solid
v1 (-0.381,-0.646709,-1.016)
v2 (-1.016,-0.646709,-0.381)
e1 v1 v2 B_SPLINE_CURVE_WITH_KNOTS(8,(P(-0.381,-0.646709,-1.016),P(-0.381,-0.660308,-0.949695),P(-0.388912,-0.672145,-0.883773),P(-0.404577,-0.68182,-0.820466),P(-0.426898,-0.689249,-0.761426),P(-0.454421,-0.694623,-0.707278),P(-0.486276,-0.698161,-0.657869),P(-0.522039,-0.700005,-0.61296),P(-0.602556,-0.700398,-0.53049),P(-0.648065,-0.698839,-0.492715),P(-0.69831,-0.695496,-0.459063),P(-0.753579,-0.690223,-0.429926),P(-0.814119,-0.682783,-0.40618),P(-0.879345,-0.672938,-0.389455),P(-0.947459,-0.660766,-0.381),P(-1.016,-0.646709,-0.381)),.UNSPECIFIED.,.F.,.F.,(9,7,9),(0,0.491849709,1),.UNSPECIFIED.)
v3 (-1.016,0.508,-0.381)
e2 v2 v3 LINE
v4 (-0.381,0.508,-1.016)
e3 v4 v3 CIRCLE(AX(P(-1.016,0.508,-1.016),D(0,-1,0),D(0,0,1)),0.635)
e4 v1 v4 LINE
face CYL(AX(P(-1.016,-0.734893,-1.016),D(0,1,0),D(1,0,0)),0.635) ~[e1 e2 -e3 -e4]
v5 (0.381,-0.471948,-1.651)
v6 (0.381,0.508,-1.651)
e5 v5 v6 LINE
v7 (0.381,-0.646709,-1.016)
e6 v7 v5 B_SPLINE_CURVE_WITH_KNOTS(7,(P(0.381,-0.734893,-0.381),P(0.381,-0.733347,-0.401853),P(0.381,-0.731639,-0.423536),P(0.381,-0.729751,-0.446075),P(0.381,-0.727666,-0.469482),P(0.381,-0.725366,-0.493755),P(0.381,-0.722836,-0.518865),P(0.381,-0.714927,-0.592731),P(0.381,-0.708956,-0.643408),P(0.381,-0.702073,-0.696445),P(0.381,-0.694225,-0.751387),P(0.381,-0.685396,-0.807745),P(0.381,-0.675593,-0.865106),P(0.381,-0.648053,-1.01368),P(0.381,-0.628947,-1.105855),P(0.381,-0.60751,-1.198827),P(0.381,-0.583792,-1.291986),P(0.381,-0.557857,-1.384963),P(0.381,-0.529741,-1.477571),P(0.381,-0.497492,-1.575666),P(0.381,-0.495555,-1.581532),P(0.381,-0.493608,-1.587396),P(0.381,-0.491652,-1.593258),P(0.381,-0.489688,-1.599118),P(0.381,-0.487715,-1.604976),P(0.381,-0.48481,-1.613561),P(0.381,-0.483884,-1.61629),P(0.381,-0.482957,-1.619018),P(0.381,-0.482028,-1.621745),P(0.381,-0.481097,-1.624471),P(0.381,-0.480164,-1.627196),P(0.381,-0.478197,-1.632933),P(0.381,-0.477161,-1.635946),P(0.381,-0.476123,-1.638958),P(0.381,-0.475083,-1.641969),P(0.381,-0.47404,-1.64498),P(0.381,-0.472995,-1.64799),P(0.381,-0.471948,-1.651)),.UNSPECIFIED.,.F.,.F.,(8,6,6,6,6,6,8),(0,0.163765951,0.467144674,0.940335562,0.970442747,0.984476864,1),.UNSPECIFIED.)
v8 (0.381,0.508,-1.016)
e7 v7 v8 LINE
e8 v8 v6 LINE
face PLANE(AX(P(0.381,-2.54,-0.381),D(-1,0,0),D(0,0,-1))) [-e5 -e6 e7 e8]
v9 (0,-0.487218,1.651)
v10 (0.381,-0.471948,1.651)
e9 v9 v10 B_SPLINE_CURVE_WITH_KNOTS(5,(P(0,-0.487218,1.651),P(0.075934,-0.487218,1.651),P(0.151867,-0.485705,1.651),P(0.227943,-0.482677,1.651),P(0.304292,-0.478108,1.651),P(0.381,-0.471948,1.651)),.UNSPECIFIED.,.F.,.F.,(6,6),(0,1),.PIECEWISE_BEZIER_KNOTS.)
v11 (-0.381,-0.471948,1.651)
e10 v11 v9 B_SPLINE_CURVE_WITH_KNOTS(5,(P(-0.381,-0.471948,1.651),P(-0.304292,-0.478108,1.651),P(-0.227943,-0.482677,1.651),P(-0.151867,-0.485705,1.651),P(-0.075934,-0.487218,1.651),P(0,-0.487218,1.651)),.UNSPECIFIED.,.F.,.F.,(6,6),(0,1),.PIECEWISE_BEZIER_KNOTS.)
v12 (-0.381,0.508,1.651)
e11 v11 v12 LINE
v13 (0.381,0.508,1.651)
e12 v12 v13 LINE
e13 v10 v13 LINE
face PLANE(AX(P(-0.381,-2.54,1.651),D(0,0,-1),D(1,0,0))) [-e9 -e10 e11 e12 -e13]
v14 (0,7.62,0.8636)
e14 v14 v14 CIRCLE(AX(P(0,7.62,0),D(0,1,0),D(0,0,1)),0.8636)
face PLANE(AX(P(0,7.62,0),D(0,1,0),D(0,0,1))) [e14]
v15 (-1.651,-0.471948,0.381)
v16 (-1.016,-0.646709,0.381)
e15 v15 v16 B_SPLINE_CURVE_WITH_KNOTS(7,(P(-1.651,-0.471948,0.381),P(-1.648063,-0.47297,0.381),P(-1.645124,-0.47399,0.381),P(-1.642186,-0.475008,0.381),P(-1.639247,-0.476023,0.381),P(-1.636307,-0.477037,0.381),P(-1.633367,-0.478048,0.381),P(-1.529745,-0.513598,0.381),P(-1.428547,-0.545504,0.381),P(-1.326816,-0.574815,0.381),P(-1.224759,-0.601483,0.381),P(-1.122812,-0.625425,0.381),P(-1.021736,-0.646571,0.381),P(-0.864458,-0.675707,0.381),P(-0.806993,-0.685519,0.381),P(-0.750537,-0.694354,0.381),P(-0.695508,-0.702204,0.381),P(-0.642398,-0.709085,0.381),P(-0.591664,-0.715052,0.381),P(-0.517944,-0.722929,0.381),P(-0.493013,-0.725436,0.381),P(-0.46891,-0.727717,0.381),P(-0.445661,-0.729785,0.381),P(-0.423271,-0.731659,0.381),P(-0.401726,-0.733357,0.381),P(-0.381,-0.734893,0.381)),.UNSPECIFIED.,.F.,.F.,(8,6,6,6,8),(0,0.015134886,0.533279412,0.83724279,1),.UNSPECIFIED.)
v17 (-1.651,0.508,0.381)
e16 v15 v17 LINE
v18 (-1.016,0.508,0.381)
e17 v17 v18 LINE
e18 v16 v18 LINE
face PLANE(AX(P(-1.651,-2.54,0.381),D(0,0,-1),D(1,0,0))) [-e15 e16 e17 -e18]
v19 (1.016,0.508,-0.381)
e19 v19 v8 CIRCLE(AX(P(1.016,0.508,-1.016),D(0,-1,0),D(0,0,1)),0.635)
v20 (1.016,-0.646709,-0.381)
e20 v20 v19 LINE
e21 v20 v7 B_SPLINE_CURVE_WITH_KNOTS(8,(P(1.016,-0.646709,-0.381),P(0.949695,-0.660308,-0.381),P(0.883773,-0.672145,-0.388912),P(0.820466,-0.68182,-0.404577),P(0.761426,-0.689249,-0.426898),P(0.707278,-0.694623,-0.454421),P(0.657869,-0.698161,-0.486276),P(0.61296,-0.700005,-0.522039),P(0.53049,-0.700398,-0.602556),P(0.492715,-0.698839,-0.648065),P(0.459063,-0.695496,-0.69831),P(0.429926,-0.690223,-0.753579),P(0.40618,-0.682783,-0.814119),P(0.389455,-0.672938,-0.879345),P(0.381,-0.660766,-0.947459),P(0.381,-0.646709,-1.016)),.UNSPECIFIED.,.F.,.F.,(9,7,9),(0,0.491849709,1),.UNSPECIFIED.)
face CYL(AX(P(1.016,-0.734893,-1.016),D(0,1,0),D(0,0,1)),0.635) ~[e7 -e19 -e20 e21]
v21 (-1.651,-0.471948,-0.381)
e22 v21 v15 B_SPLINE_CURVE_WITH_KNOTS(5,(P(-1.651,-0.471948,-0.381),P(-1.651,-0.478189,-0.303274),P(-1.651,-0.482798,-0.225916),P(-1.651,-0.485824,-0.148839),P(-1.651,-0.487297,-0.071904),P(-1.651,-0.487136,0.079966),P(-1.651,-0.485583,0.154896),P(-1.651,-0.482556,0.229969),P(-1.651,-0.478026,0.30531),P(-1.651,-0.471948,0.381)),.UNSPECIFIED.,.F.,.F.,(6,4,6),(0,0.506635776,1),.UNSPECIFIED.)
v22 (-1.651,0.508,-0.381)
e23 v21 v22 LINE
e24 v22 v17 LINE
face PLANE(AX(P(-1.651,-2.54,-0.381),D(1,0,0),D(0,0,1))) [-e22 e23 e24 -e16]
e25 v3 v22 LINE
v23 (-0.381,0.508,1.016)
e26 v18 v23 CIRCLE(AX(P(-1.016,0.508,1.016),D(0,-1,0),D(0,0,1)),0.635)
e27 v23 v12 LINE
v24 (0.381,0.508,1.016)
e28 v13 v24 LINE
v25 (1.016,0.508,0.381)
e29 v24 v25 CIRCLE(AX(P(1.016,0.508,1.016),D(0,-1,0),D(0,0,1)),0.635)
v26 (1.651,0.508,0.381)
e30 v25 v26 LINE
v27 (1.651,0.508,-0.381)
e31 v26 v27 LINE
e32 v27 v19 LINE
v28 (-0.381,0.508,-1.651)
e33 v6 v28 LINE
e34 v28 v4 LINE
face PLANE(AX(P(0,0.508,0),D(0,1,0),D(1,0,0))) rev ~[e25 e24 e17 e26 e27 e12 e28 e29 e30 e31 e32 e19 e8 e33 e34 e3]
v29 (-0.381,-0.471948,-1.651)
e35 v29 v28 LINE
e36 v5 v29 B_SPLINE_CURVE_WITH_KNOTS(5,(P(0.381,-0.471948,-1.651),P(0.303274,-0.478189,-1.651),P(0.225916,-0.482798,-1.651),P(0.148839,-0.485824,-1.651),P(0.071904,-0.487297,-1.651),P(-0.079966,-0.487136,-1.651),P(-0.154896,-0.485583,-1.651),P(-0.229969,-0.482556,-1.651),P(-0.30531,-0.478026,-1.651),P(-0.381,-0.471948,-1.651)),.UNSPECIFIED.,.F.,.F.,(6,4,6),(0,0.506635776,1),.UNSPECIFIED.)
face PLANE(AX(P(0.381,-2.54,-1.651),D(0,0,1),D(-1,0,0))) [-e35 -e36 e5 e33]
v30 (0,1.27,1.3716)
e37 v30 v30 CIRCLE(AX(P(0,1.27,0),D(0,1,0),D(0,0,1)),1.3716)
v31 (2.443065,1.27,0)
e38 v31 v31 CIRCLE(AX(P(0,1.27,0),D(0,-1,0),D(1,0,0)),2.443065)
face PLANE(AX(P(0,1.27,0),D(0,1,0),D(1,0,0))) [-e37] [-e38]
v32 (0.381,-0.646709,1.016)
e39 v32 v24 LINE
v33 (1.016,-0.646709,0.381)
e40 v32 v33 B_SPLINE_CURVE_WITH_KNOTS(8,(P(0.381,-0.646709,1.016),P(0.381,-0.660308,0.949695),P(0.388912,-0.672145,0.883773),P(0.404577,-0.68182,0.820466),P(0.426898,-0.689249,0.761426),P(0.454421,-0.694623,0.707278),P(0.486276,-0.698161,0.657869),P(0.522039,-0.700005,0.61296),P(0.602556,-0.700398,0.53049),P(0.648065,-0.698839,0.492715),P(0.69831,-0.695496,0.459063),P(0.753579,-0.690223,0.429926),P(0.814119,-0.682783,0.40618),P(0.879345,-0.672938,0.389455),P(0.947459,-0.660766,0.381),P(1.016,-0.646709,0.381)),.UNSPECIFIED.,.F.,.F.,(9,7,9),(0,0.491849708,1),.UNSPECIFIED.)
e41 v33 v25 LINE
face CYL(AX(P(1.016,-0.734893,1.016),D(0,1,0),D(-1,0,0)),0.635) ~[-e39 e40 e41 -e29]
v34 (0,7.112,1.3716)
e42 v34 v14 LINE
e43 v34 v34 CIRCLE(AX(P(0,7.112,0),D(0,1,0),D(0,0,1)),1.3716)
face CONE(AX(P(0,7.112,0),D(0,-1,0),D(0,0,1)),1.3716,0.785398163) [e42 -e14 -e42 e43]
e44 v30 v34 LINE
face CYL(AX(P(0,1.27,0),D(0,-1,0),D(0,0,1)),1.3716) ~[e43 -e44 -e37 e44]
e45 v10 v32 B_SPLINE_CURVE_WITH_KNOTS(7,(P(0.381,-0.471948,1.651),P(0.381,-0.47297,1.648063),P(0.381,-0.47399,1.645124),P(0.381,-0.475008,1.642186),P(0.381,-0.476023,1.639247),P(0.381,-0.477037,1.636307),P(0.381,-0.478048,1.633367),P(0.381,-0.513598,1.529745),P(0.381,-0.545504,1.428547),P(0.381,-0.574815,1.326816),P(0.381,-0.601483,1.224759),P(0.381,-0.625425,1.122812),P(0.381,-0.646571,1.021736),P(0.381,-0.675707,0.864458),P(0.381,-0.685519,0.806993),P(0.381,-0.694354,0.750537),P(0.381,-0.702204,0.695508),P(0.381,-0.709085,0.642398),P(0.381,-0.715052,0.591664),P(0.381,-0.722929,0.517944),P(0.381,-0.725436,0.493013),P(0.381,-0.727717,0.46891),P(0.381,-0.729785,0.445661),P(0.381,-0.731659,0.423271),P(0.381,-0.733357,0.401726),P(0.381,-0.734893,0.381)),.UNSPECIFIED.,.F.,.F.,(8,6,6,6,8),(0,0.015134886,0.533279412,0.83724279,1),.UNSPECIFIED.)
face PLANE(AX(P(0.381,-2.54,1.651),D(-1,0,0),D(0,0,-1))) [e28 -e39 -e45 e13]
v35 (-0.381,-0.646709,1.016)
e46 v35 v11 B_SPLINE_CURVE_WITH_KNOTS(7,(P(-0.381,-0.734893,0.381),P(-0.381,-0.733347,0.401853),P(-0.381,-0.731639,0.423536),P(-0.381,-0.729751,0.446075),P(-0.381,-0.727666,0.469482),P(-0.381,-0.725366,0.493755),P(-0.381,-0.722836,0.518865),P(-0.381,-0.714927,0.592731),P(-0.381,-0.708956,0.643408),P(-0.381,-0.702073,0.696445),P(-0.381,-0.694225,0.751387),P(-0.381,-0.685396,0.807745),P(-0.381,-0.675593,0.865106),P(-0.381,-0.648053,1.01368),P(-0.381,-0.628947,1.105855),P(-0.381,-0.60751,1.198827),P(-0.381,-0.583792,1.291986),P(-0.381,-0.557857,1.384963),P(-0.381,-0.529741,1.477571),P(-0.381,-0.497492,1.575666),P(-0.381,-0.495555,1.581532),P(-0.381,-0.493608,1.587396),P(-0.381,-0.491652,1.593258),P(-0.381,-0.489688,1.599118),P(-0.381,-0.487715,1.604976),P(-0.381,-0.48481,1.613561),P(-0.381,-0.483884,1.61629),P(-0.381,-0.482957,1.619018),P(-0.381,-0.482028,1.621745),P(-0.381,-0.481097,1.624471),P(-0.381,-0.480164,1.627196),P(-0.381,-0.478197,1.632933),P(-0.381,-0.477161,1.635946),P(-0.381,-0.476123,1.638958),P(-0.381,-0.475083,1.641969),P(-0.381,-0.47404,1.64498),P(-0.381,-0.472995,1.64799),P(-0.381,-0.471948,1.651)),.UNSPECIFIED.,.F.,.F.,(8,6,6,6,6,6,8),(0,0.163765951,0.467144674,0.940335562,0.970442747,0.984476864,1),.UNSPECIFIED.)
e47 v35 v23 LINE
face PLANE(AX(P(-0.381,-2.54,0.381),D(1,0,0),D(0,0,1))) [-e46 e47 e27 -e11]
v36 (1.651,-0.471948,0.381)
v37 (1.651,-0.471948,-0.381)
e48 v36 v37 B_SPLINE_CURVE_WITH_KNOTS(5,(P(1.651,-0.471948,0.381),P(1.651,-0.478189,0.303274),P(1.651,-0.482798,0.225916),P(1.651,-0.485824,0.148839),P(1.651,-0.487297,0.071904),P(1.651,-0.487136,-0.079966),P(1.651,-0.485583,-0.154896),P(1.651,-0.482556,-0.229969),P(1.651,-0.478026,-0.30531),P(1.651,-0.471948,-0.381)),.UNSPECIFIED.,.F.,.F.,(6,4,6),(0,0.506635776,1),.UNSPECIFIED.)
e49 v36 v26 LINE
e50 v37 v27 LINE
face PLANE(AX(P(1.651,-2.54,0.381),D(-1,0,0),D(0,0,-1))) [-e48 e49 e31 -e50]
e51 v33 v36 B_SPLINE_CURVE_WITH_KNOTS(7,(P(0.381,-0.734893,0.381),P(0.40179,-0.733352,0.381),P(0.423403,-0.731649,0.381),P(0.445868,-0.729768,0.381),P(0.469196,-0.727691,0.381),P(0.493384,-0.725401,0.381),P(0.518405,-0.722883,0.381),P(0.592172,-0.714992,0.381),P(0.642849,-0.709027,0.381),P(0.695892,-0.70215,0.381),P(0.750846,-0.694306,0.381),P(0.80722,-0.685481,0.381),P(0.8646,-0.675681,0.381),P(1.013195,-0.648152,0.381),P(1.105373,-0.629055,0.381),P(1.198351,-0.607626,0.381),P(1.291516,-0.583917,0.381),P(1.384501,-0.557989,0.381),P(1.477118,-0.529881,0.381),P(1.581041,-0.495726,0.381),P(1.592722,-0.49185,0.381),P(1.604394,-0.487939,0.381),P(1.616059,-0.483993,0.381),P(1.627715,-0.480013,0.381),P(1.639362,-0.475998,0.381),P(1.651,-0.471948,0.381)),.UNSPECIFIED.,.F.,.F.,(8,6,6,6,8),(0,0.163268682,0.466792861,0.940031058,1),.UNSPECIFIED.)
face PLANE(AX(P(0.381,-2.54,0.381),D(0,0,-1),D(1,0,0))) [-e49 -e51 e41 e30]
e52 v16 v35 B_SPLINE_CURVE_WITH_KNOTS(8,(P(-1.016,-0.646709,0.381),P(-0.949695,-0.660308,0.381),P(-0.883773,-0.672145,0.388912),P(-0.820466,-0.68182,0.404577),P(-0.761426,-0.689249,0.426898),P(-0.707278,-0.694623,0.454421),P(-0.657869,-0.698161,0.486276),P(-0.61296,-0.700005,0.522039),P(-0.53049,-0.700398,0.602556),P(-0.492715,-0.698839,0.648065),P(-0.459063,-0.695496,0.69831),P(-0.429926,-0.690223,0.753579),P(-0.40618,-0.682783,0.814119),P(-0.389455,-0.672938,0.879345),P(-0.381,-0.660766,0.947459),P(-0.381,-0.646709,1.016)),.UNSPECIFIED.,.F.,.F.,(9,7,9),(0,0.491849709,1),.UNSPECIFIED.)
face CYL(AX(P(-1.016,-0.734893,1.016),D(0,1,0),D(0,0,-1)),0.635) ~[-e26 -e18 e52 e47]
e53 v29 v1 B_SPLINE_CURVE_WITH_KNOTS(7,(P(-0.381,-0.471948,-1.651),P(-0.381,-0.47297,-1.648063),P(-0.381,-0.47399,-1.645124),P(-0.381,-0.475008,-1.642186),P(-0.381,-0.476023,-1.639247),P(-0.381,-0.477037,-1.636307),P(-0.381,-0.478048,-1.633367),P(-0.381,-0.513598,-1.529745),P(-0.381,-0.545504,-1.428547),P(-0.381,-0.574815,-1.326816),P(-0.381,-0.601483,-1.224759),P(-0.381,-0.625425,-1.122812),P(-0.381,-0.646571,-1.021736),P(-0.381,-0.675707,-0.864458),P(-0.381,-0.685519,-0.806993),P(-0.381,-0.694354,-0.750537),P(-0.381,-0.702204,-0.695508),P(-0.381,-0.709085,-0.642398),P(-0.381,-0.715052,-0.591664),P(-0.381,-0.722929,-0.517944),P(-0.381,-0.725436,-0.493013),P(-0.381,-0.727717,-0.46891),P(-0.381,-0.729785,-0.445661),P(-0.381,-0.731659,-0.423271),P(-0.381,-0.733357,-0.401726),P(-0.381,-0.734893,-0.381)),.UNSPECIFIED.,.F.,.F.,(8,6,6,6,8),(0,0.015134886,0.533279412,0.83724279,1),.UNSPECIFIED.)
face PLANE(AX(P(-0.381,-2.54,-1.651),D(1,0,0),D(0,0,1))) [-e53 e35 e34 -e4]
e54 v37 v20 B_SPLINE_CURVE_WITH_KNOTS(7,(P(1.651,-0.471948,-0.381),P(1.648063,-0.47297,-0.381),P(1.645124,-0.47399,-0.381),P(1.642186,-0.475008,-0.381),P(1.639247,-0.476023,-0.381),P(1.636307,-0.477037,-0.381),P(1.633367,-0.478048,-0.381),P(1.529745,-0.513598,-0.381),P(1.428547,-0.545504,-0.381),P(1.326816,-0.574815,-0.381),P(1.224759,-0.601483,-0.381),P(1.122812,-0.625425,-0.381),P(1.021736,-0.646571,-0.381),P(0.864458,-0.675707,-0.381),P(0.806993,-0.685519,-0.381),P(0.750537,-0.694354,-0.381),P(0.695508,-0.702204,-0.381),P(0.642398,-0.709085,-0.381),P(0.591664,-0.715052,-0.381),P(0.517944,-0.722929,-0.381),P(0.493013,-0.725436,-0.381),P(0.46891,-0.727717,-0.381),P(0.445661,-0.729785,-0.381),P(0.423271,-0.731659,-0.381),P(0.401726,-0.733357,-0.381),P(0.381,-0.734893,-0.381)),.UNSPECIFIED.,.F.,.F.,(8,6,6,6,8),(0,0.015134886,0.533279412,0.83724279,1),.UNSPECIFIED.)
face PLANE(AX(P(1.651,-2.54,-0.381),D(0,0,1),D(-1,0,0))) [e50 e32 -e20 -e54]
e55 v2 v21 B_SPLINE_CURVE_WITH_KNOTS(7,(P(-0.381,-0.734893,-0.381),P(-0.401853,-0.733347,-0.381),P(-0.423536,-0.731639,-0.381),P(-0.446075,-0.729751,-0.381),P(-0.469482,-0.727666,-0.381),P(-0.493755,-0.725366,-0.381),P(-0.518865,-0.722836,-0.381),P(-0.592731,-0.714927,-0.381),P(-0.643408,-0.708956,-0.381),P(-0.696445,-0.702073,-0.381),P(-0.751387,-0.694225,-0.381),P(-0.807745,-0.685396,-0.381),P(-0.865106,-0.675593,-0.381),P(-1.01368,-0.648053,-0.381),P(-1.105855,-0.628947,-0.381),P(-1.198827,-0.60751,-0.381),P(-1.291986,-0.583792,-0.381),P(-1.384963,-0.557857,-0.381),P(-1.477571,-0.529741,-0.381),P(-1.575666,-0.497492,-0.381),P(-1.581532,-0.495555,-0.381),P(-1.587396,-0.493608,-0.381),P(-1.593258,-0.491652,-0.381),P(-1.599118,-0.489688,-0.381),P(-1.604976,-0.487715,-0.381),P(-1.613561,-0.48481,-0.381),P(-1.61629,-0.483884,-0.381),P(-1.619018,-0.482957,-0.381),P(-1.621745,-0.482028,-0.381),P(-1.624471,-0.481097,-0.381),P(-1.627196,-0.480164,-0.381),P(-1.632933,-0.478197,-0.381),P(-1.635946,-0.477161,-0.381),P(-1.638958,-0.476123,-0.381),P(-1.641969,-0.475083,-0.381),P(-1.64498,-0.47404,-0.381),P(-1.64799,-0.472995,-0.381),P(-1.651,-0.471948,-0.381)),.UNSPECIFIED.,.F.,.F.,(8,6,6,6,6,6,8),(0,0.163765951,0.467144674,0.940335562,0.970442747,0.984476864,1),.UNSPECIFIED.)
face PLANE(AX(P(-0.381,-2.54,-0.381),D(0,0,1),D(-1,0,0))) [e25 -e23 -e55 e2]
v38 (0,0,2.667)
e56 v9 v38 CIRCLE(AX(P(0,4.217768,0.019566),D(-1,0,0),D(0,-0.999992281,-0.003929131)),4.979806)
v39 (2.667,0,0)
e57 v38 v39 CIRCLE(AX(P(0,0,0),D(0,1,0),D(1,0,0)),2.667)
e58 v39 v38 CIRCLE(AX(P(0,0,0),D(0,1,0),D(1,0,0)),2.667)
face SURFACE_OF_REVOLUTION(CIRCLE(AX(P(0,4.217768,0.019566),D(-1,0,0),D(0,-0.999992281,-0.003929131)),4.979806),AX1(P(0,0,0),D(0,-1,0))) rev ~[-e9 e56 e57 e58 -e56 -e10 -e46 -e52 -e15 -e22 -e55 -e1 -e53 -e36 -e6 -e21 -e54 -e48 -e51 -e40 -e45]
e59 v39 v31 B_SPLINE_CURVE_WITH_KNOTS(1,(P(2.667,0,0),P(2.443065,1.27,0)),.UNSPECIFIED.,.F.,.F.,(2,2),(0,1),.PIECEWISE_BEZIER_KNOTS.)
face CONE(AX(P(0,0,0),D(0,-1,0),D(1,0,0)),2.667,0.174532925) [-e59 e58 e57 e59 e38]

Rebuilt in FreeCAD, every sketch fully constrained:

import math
import FreeCAD as App
import Part
import Sketcher

V = App.Vector
Q = App.Units.Quantity


def edges_at(feature, points):
    """Names of the edges that pass closest to the given points."""
    edges = feature.Shape.Edges
    near = lambda p: min(range(len(edges)), key=lambda i: edges[i].distToShape(Part.Vertex(*p))[0])
    return sorted({f"Edge{near(p) + 1}" for p in points})


def add_polygon(sketch, points):
    """Adds a closed chain of lines whose ends are joined by coincident constraints."""
    first, n = sketch.GeometryCount, len(points)
    for a, b in zip(points, points[1:] + points[:1]):
        sketch.addGeometry(Part.LineSegment(App.Vector(*a, 0), App.Vector(*b, 0)), False)
    for i in range(n):
        sketch.addConstraint(Sketcher.Constraint("Coincident", first + i, 2, first + (i + 1) % n, 1))

doc = App.newDocument("Part")
body = doc.addObject("PartDesign::Body", "Body")

# Sketch on XZ plane
sketch1 = body.newObject("Sketcher::SketchObject", "Sketch")
sketch1.AttachmentSupport = (doc.getObject("XZ_Plane"), [""])
sketch1.MapMode = "FlatFace"
sketch1.addGeometry(Part.Circle(V(0, 0, 0), V(0, 0, 1), 2.7), False)
sketch1.addConstraint([
    Sketcher.Constraint("Coincident", 0, 3, -1, 1),
    Sketcher.Constraint("Diameter", 0, Q("0.21 in")),
])
pad1 = body.newObject("PartDesign::Pad", "Pad")
pad1.Profile = sketch1
pad1.Length = Q("0.05 in")
pad1.Reversed = True
pad1.TaperAngle = -10

# Sketch on YZ plane
sketch2 = body.newObject("Sketcher::SketchObject", "Sketch001")
sketch2.AttachmentSupport = (doc.getObject("YZ_Plane"), [""])
sketch2.MapMode = "FlatFace"
sketch2.addGeometry([
    Part.LineSegment(V(-0.8, 0, 0), V(0, 0, 0)),
    Part.LineSegment(V(0, 0, 0), V(0, 2.7, 0)),
    Part.ArcOfCircle(Part.Circle(V(4.2, 0, 0), V(0, 0, 1), 5), math.radians(148), math.radians(180)),
], False)
sketch2.addConstraint([
    Sketcher.Constraint("Coincident", 0, 2, 1, 1),
    Sketcher.Constraint("Coincident", 1, 2, 2, 1),
    Sketcher.Constraint("Coincident", 2, 2, 0, 1),
    Sketcher.Constraint("Horizontal", 0),
    Sketcher.Constraint("Vertical", 1),
    Sketcher.Constraint("Coincident", 0, 2, -1, 1),
    Sketcher.Constraint("DistanceX", 0, 1, 0, 2, Q("0.03 in")),
    Sketcher.Constraint("DistanceY", 1, 1, 1, 2, Q("0.105 in")),
    Sketcher.Constraint("Radius", 2, Q("4.979806 mm")),
])
revolution = body.newObject("PartDesign::Revolution", "Revolution")
revolution.Profile = sketch2
revolution.ReferenceAxis = (sketch2, ["H_Axis"])
revolution.Angle = 360

# Sketch on XZ plane
sketch3 = body.newObject("Sketcher::SketchObject", "Sketch002")
sketch3.AttachmentSupport = (doc.getObject("XZ_Plane"), [""])
sketch3.MapMode = "FlatFace"
sketch3.AttachmentOffset = App.Placement(V(0, 0, -0.05 * 25.4), App.Rotation())
sketch3.addGeometry(Part.Circle(V(0, 0, 0), V(0, 0, 1), 1.4), False)
sketch3.addConstraint([
    Sketcher.Constraint("Coincident", 0, 3, -1, 1),
    Sketcher.Constraint("Diameter", 0, Q("0.108 in")),
])
pad2 = body.newObject("PartDesign::Pad", "Pad001")
pad2.Profile = sketch3
pad2.Length = Q("0.25 in")
pad2.Reversed = True
doc.recompute()

chamfer = body.newObject("PartDesign::Chamfer", "Chamfer")
chamfer.Base = (pad2, edges_at(pad2, [(0, 7.62, -1.372)]))
chamfer.Size = Q("0.02 in")

# Sketch on XZ plane
sketch4 = body.newObject("Sketcher::SketchObject", "Sketch003")
sketch4.AttachmentSupport = (doc.getObject("XZ_Plane"), [""])
sketch4.MapMode = "FlatFace"
sketch4.AttachmentOffset = App.Placement(V(0, 0, 0.1 * 25.4), App.Rotation())
add_polygon(sketch4, [(-1.7, -0.4), (-1.7, 0.4), (-0.4, 0.4), (-0.4, 1.7), (0.4, 1.7), (0.4, 0.4), (1.7, 0.4), (1.7, -0.4), (0.4, -0.4), (0.4, -1.7), (-0.4, -1.7), (-0.4, -0.4)])  # lines 0-11
sketch4.addConstraint([
    Sketcher.Constraint("Vertical", 0),
    Sketcher.Constraint("Horizontal", 1),
    Sketcher.Constraint("Vertical", 2),
    Sketcher.Constraint("Horizontal", 3),
    Sketcher.Constraint("Vertical", 4),
    Sketcher.Constraint("Horizontal", 5),
    Sketcher.Constraint("Vertical", 6),
    Sketcher.Constraint("Horizontal", 7),
    Sketcher.Constraint("Vertical", 8),
    Sketcher.Constraint("Horizontal", 9),
    Sketcher.Constraint("Vertical", 10),
    Sketcher.Constraint("Horizontal", 11),
    Sketcher.Constraint("Symmetric", 0, 2, 6, 2, -1, 1),
    Sketcher.Constraint("Symmetric", 2, 2, 8, 2, -1, 1),
    Sketcher.Constraint("Symmetric", 4, 2, 10, 2, -1, 1),
    Sketcher.Constraint("Symmetric", 1, 2, 4, 2, -2),
    Sketcher.Constraint("Equal", 9, 0),
    Sketcher.Constraint("Equal", 11, 2),
    Sketcher.Constraint("DistanceX", 1, 1, 1, 2, Q("0.05 in")),
    Sketcher.Constraint("DistanceX", 3, 1, 3, 2, Q("0.03 in")),
])
pocket1 = body.newObject("PartDesign::Pocket", "Pocket")
pocket1.Profile = sketch4
pocket1.Length = Q("0.12 in")
doc.recompute()

fillet = body.newObject("PartDesign::Fillet", "Fillet")
fillet.Base = (pocket1, edges_at(pocket1, [
    (0.381, -0.113, -0.381),
    (-0.381, -0.113, -0.381),
    (0.381, -0.113, 0.381),
    (-0.381, -0.113, 0.381),
]))
fillet.Radius = Q("0.025 in")

doc.recompute()
